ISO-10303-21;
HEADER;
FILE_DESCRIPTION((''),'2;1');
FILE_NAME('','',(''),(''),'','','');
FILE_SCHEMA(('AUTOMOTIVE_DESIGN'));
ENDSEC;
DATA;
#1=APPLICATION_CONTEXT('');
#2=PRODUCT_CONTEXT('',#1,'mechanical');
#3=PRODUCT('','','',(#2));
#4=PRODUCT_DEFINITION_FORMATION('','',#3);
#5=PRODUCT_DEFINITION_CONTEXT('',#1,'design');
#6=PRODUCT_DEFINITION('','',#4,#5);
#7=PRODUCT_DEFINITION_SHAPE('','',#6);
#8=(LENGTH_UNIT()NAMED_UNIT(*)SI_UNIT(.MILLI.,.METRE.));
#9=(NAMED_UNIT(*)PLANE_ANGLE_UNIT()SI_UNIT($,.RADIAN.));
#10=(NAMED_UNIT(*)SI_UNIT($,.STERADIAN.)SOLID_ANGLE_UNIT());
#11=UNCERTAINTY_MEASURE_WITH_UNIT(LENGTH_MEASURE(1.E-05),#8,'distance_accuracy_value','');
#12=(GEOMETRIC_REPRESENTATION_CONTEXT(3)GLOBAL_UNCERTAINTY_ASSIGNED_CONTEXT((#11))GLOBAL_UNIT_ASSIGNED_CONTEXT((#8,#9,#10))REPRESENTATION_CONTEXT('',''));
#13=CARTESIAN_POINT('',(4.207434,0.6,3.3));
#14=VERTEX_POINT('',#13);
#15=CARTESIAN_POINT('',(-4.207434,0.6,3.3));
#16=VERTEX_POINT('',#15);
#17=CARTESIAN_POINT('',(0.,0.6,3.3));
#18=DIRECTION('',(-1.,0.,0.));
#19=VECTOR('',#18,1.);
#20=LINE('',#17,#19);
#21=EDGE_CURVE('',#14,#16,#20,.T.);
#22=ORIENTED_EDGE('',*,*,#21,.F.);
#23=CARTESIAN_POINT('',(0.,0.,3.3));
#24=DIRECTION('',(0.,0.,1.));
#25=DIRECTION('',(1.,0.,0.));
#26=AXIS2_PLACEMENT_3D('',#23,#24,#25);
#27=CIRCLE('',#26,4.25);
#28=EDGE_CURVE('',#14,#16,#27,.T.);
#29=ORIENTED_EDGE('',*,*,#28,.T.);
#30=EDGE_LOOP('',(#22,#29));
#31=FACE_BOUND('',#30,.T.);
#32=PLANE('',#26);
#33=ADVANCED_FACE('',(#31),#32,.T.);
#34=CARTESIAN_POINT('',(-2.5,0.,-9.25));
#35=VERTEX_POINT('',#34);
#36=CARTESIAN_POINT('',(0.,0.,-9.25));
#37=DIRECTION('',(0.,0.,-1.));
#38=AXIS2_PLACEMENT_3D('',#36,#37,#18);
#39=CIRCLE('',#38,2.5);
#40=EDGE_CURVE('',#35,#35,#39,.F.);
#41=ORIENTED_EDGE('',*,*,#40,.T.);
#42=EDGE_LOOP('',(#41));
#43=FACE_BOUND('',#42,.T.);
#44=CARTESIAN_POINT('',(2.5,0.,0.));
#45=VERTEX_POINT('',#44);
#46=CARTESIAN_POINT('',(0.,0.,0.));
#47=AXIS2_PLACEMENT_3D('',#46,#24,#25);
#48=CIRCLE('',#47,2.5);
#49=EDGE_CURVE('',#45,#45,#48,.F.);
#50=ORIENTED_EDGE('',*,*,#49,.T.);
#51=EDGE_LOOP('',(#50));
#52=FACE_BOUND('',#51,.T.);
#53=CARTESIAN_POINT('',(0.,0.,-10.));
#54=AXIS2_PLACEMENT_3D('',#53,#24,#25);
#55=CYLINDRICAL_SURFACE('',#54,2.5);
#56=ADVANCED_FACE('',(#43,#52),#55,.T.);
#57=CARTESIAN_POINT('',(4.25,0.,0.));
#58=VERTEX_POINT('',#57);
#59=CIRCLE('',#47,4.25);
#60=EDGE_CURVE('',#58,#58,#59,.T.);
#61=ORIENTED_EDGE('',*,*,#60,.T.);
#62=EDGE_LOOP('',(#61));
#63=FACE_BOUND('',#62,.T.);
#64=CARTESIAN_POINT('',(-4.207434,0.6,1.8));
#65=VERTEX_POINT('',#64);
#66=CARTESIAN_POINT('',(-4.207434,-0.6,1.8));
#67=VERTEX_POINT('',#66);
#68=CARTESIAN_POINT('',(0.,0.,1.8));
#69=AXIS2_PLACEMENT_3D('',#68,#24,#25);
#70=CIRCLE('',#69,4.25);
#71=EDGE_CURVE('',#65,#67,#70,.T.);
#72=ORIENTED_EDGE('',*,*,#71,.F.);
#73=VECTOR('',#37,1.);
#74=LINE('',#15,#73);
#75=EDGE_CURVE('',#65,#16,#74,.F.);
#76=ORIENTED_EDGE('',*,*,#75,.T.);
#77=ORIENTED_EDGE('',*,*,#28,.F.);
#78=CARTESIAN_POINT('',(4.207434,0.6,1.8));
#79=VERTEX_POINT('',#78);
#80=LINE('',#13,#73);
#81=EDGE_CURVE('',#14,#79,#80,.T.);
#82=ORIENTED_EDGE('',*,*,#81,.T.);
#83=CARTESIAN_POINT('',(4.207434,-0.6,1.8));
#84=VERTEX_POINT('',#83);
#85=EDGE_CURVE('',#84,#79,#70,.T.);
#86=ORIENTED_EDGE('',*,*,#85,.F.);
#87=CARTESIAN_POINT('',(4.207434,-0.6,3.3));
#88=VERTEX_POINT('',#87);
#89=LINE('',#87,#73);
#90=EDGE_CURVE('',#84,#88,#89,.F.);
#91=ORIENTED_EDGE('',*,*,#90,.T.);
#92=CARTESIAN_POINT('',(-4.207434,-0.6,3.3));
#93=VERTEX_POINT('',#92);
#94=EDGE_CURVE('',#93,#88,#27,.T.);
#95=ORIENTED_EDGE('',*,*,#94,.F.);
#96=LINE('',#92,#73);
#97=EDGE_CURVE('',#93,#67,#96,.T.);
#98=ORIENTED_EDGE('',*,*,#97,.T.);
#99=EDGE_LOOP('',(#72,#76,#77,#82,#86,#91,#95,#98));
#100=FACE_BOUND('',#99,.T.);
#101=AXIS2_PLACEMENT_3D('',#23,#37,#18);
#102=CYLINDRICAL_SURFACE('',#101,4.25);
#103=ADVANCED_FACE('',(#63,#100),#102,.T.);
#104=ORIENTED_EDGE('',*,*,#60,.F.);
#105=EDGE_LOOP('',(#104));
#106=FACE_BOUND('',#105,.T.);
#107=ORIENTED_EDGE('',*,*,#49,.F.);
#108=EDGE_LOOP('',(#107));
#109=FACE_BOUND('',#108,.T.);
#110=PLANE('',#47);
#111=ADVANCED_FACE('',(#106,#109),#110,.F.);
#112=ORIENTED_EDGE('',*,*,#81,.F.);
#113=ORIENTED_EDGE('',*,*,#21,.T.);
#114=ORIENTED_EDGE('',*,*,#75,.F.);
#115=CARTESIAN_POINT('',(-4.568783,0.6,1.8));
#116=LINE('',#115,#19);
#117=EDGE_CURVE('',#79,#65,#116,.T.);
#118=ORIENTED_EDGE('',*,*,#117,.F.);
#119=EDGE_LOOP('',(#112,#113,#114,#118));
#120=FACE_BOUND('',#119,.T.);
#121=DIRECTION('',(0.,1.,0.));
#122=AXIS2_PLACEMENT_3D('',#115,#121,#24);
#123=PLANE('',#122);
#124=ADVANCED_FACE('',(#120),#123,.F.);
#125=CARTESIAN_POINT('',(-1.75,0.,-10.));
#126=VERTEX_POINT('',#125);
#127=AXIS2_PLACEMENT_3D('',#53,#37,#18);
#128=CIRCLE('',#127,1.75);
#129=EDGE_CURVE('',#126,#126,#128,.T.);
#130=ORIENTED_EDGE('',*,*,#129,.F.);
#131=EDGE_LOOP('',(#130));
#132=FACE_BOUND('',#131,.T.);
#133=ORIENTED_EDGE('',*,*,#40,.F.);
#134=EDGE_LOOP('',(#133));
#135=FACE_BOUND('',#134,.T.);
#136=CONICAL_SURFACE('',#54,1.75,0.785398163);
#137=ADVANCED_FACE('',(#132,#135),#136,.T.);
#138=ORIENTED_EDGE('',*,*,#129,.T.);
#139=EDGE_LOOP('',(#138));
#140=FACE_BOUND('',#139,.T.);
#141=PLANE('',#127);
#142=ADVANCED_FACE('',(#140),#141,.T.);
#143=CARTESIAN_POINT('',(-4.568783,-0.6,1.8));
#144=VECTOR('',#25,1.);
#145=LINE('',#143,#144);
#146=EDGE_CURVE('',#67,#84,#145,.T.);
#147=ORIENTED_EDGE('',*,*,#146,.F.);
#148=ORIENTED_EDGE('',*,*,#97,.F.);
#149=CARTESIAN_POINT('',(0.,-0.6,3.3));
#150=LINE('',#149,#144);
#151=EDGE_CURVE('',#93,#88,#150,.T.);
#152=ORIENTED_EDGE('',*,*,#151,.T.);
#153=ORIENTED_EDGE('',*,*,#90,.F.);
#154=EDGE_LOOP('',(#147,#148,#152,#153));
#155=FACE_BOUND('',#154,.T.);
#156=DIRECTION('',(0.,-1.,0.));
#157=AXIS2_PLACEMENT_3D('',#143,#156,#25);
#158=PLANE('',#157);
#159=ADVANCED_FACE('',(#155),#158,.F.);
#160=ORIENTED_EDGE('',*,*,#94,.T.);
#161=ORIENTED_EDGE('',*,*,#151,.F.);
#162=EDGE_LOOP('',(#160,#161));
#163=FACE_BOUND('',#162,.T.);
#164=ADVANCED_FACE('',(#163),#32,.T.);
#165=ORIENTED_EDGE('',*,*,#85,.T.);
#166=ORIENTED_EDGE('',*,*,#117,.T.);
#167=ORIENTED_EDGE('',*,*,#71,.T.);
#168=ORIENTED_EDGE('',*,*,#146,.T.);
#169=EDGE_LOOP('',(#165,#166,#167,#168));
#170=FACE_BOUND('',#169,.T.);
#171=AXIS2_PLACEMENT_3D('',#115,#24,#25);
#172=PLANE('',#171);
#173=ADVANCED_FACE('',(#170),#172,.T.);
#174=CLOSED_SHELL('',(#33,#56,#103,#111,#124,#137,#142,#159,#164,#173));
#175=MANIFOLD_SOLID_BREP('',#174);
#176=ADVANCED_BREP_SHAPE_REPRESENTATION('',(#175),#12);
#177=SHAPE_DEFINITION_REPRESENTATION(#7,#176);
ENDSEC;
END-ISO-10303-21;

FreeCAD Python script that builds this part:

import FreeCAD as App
import Part
import Sketcher


def edges_at(feature, points):
    """Names of the edges that pass closest to the given points."""
    edges = feature.Shape.Edges
    near = lambda p: min(range(len(edges)), key=lambda i: edges[i].distToShape(Part.Vertex(*p))[0])
    return sorted({f"Edge{near(p) + 1}" for p in points})


def add_polygon(sketch, points):
    """Adds a closed chain of lines whose ends are joined by coincident constraints."""
    first, n = sketch.GeometryCount, len(points)
    for a, b in zip(points, points[1:] + points[:1]):
        sketch.addGeometry(Part.LineSegment(App.Vector(*a, 0), App.Vector(*b, 0)), False)
    for i in range(n):
        sketch.addConstraint(Sketcher.Constraint("Coincident", first + i, 2, first + (i + 1) % n, 1))

doc = App.newDocument("Part")
body = doc.addObject("PartDesign::Body", "Body")

# Sketch on XY plane
sketch1 = doc.addObject("Sketcher::SketchObject", "Sketch")
body.addObject(sketch1)
sketch1.AttachmentSupport = (doc.XY_Plane, [""])
sketch1.MapMode = "FlatFace"
sketch1.addGeometry(Part.Circle(App.Vector(0, 0, 0), App.Vector(0, 0, 1), 4.2), False)
sketch1.addConstraint([
    Sketcher.Constraint("Coincident", 0, 3, -1, 1),
    Sketcher.Constraint("Diameter", 0, 8.5),
])
pad1 = doc.addObject("PartDesign::Pad", "Pad")
body.addObject(pad1)
pad1.Profile = sketch1
pad1.Length = 3.3

# Sketch on XY plane
sketch2 = doc.addObject("Sketcher::SketchObject", "Sketch001")
body.addObject(sketch2)
sketch2.AttachmentSupport = (doc.XY_Plane, [""])
sketch2.MapMode = "FlatFace"
sketch2.addGeometry(Part.Circle(App.Vector(0, 0, 0), App.Vector(0, 0, 1), 2.5), False)
sketch2.addConstraint([
    Sketcher.Constraint("Coincident", 0, 3, -1, 1),
    Sketcher.Constraint("Diameter", 0, 5.0),
])
pad2 = doc.addObject("PartDesign::Pad", "Pad001")
body.addObject(pad2)
pad2.Profile = sketch2
pad2.Length = 10
pad2.Reversed = True

# Sketch on XY plane
sketch3 = doc.addObject("Sketcher::SketchObject", "Sketch002")
body.addObject(sketch3)
sketch3.AttachmentSupport = (doc.XY_Plane, [""])
sketch3.MapMode = "FlatFace"
sketch3.AttachmentOffset = App.Placement(App.Vector(0, 0, 3.3), App.Rotation())
add_polygon(sketch3, [(-4.6, 0.6), (-4.6, -0.6), (4.4, -0.6), (4.4, 0.6)])  # lines 0-3
sketch3.addConstraint([
    Sketcher.Constraint("Vertical", 0),
    Sketcher.Constraint("Horizontal", 1),
    Sketcher.Constraint("Vertical", 2),
    Sketcher.Constraint("Horizontal", 3),
    Sketcher.Constraint("DistanceY", 0, 2, 0, 1, 1.2),
    Sketcher.Constraint("DistanceY", 0, 2, -1, 1, 0.6),
    Sketcher.Constraint("DistanceX", 1, 1, 1, 2, 9.006614),
    Sketcher.Constraint("DistanceX", -1, 1, 1, 2, 4.437831),
])
pocket1 = doc.addObject("PartDesign::Pocket", "Pocket")
body.addObject(pocket1)
pocket1.Profile = sketch3
pocket1.Length = 1.5
doc.recompute()

chamfer = doc.addObject("PartDesign::Chamfer", "Chamfer")
body.addObject(chamfer)
chamfer.Base = (pocket1, edges_at(pocket1, [(-2.5, 0, -10)]))
chamfer.Size = 0.75

doc.recompute()
